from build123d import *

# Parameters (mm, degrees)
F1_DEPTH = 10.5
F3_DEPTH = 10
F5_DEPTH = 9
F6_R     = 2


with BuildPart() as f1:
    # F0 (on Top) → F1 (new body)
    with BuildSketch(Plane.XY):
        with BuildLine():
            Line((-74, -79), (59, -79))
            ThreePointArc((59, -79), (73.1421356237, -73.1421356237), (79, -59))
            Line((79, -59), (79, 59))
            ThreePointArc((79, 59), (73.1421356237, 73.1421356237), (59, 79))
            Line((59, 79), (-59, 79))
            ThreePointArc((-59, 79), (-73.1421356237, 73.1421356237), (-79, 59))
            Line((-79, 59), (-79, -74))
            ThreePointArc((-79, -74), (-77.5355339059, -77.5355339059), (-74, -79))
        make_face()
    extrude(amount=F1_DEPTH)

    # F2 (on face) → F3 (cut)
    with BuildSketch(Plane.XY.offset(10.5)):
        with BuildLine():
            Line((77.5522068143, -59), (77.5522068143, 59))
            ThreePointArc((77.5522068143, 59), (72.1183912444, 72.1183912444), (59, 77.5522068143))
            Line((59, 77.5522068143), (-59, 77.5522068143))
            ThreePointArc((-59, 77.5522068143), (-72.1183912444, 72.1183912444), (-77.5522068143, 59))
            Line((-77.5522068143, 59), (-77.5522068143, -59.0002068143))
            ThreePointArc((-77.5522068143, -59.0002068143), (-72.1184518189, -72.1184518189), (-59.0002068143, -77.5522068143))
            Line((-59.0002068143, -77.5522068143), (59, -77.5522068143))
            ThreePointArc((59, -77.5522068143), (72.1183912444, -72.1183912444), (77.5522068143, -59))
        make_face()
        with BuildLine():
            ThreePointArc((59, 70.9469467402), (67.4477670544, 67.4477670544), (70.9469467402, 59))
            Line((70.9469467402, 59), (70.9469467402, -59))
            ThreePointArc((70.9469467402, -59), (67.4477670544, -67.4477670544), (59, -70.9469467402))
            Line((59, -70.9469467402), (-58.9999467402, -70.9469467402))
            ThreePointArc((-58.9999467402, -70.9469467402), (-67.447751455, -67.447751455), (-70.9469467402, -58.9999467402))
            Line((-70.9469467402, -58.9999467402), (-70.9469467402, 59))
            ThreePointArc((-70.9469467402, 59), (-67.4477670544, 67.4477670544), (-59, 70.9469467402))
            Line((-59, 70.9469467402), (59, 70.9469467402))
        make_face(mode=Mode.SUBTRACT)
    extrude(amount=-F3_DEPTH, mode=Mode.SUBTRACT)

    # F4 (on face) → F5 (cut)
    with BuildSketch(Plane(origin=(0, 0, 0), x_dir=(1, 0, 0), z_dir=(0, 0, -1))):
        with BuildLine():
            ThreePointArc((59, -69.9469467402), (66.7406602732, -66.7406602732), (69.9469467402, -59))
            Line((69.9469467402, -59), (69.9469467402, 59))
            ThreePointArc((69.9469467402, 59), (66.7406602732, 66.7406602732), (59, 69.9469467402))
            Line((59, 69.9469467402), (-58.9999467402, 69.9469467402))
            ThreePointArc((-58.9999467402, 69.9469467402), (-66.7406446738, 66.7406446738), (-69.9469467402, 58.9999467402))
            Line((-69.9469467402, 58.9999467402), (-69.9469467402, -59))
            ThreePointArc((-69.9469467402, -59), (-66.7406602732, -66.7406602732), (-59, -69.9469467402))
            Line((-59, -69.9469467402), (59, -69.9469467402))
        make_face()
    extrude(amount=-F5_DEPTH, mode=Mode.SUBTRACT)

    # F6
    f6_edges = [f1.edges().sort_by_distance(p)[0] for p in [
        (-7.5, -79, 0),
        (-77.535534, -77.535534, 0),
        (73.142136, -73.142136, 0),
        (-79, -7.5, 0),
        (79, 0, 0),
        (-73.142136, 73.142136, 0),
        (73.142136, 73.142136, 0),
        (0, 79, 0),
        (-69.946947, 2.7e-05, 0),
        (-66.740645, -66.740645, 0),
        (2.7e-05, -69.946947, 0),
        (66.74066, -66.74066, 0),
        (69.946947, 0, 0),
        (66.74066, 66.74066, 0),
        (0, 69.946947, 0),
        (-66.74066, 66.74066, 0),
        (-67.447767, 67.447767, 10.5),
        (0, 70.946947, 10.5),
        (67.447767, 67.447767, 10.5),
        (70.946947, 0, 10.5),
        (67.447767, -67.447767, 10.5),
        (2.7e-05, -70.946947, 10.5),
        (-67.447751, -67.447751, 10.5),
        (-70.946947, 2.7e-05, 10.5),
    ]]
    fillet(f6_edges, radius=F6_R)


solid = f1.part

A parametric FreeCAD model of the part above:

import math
import FreeCAD as App
import Part
import Sketcher

V = App.Vector


def edges_at(feature, points):
    """Names of the edges that pass closest to the given points."""
    edges = feature.Shape.Edges
    near = lambda p: min(range(len(edges)), key=lambda i: edges[i].distToShape(Part.Vertex(*p))[0])
    return sorted({f"Edge{near(p) + 1}" for p in points})

doc = App.newDocument("Part")
params = doc.addObject("Spreadsheet::Sheet", "Params")
for row, (alias, value) in enumerate([
    ("sketch1_radius", "20 mm"),
    ("sketch1_radius2", "5 mm"),
    ("sketch1_width", "133 mm"),
    ("pad1_length", "10.5 mm"),
    ("sketch2_width", "118 mm"),
    ("pocket1_length", "10 mm"),
    ("sketch3_width", "118 mm"),
    ("pocket2_length", "9 mm"),
    ("fillet_radius", "2 mm"),
], start=1):
    params.set(f"A{row}", alias)
    params.set(f"B{row}", "=" + value)
    params.setAlias(f"B{row}", alias)

body = doc.addObject("PartDesign::Body", "Body")

# Sketch on XY plane
sketch1 = body.newObject("Sketcher::SketchObject", "Sketch")
sketch1.AttachmentSupport = (doc.getObject("XY_Plane"), [""])
sketch1.MapMode = "FlatFace"
sketch1.addGeometry(Part.LineSegment(V(-74, -79, 0), V(59, -79, 0)), False)
sketch1.addGeometry(Part.ArcOfCircle(Part.Circle(V(59, -59, 0), V(0, 0, 1), 20), math.radians(-90), math.radians(0)), False)
sketch1.addGeometry(Part.LineSegment(V(79, -59, 0), V(79, 59, 0)), False)
sketch1.addGeometry(Part.ArcOfCircle(Part.Circle(V(59, 59, 0), V(0, 0, 1), 20), math.radians(0), math.radians(90)), False)
sketch1.addGeometry(Part.LineSegment(V(59, 79, 0), V(-59, 79, 0)), False)
sketch1.addGeometry(Part.ArcOfCircle(Part.Circle(V(-59, 59, 0), V(0, 0, 1), 20), math.radians(90), math.radians(180)), False)
sketch1.addGeometry(Part.LineSegment(V(-79, 59, 0), V(-79, -74, 0)), False)
sketch1.addGeometry(Part.ArcOfCircle(Part.Circle(V(-74, -74, 0), V(0, 0, 1), 5), math.radians(180), math.radians(270)), False)
sketch1.addConstraint(Sketcher.Constraint("Tangent", 0, 2, 1, 1))
sketch1.addConstraint(Sketcher.Constraint("Tangent", 1, 2, 2, 1))
sketch1.addConstraint(Sketcher.Constraint("Tangent", 2, 2, 3, 1))
sketch1.addConstraint(Sketcher.Constraint("Tangent", 3, 2, 4, 1))
sketch1.addConstraint(Sketcher.Constraint("Tangent", 4, 2, 5, 1))
sketch1.addConstraint(Sketcher.Constraint("Tangent", 5, 2, 6, 1))
sketch1.addConstraint(Sketcher.Constraint("Tangent", 6, 2, 7, 1))
sketch1.addConstraint(Sketcher.Constraint("Tangent", 7, 2, 0, 1))
sketch1.addConstraint(Sketcher.Constraint("Horizontal", 0))
sketch1.addConstraint(Sketcher.Constraint("Vertical", 2))
sketch1.addConstraint(Sketcher.Constraint("Horizontal", 4))
sketch1.addConstraint(Sketcher.Constraint("Vertical", 6))
sketch1.addConstraint(Sketcher.Constraint("Equal", 1, 3))
sketch1.addConstraint(Sketcher.Constraint("Equal", 3, 5))
sketch1.addConstraint(Sketcher.Constraint("Symmetric", 1, 3, 5, 3, -1, 1))
sketch1.addConstraint(Sketcher.Constraint("Equal", 4, 2))
sketch1.addConstraint(Sketcher.Constraint("Radius", 1, 20.0))
sketch1.addConstraint(Sketcher.Constraint("Radius", 7, 5.0))
sketch1.addConstraint(Sketcher.Constraint("DistanceX", 0, 1, 0, 2, 133.0))
sketch1.setExpression("Constraints[16]", "Params.sketch1_radius")
sketch1.setExpression("Constraints[17]", "Params.sketch1_radius2")
sketch1.setExpression("Constraints[18]", "Params.sketch1_width")
pad1 = body.newObject("PartDesign::Pad", "Pad")
pad1.Profile = sketch1
pad1.setExpression("Length", "Params.pad1_length")

# Sketch on XY plane
sketch2 = body.newObject("Sketcher::SketchObject", "Sketch001")
sketch2.AttachmentSupport = (doc.getObject("XY_Plane"), [""])
sketch2.MapMode = "FlatFace"
sketch2.AttachmentOffset = App.Placement(V(0, 0, 10.5), App.Rotation())
sketch2.addGeometry(Part.LineSegment(V(77.552207, -59, 0), V(77.552207, 59, 0)), False)
sketch2.addGeometry(Part.ArcOfCircle(Part.Circle(V(59, 59, 0), V(0, 0, 1), 18.552207), math.radians(0), math.radians(90)), False)
sketch2.addGeometry(Part.LineSegment(V(59, 77.552207, 0), V(-59, 77.552207, 0)), False)
sketch2.addGeometry(Part.ArcOfCircle(Part.Circle(V(-59, 59, 0), V(0, 0, 1), 18.552207), math.radians(90), math.radians(180)), False)
sketch2.addGeometry(Part.LineSegment(V(-77.552207, 59, 0), V(-77.552207, -59.000207, 0)), False)
sketch2.addGeometry(Part.ArcOfCircle(Part.Circle(V(-59.000207, -59.000207, 0), V(0, 0, 1), 18.552), math.radians(180), math.radians(270)), False)
sketch2.addGeometry(Part.LineSegment(V(-59.000207, -77.552207, 0), V(59, -77.552207, 0)), False)
sketch2.addGeometry(Part.ArcOfCircle(Part.Circle(V(59, -59, 0), V(0, 0, 1), 18.552207), math.radians(-90), math.radians(0)), False)
sketch2.addGeometry(Part.LineSegment(V(-59, 70.946947, 0), V(59, 70.946947, 0)), False)
sketch2.addGeometry(Part.ArcOfCircle(Part.Circle(V(59, 59, 0), V(0, 0, 1), 11.946947), math.radians(0), math.radians(90)), False)
sketch2.addGeometry(Part.LineSegment(V(70.946947, 59, 0), V(70.946947, -59, 0)), False)
sketch2.addGeometry(Part.ArcOfCircle(Part.Circle(V(59, -59, 0), V(0, 0, 1), 11.946947), math.radians(-90), math.radians(0)), False)
sketch2.addGeometry(Part.LineSegment(V(59, -70.946947, 0), V(-58.999947, -70.946947, 0)), False)
sketch2.addGeometry(Part.ArcOfCircle(Part.Circle(V(-58.999947, -58.999947, 0), V(0, 0, 1), 11.947), math.radians(180), math.radians(270)), False)
sketch2.addGeometry(Part.LineSegment(V(-70.946947, -58.999947, 0), V(-70.946947, 59, 0)), False)
sketch2.addGeometry(Part.ArcOfCircle(Part.Circle(V(-59, 59, 0), V(0, 0, 1), 11.946947), math.radians(90), math.radians(180)), False)
sketch2.addConstraint(Sketcher.Constraint("Tangent", 0, 2, 1, 1))
sketch2.addConstraint(Sketcher.Constraint("Tangent", 1, 2, 2, 1))
sketch2.addConstraint(Sketcher.Constraint("Tangent", 2, 2, 3, 1))
sketch2.addConstraint(Sketcher.Constraint("Tangent", 3, 2, 4, 1))
sketch2.addConstraint(Sketcher.Constraint("Tangent", 4, 2, 5, 1))
sketch2.addConstraint(Sketcher.Constraint("Tangent", 5, 2, 6, 1))
sketch2.addConstraint(Sketcher.Constraint("Tangent", 6, 2, 7, 1))
sketch2.addConstraint(Sketcher.Constraint("Tangent", 7, 2, 0, 1))
sketch2.addConstraint(Sketcher.Constraint("Tangent", 8, 2, 9, 2))
sketch2.addConstraint(Sketcher.Constraint("Tangent", 9, 1, 10, 1))
sketch2.addConstraint(Sketcher.Constraint("Tangent", 10, 2, 11, 2))
sketch2.addConstraint(Sketcher.Constraint("Tangent", 11, 1, 12, 1))
sketch2.addConstraint(Sketcher.Constraint("Tangent", 12, 2, 13, 2))
sketch2.addConstraint(Sketcher.Constraint("Tangent", 13, 1, 14, 1))
sketch2.addConstraint(Sketcher.Constraint("Tangent", 14, 2, 15, 2))
sketch2.addConstraint(Sketcher.Constraint("Tangent", 15, 1, 8, 1))
sketch2.addConstraint(Sketcher.Constraint("Vertical", 0))
sketch2.addConstraint(Sketcher.Constraint("Horizontal", 2))
sketch2.addConstraint(Sketcher.Constraint("Vertical", 4))
sketch2.addConstraint(Sketcher.Constraint("Horizontal", 6))
sketch2.addConstraint(Sketcher.Constraint("Horizontal", 8))
sketch2.addConstraint(Sketcher.Constraint("Vertical", 10))
sketch2.addConstraint(Sketcher.Constraint("Horizontal", 12))
sketch2.addConstraint(Sketcher.Constraint("Vertical", 14))
sketch2.addConstraint(Sketcher.Constraint("Coincident", 9, 3, 1, 3))
sketch2.addConstraint(Sketcher.Constraint("Coincident", 11, 3, 7, 3))
sketch2.addConstraint(Sketcher.Constraint("Coincident", 15, 3, 3, 3))
sketch2.addConstraint(Sketcher.Constraint("Equal", 1, 3))
sketch2.addConstraint(Sketcher.Constraint("Equal", 3, 7))
sketch2.addConstraint(Sketcher.Constraint("Symmetric", 3, 3, 7, 3, -1, 1))
sketch2.addConstraint(Sketcher.Constraint("Equal", 8, 0))
sketch2.addConstraint(Sketcher.Constraint("DistanceX", 2, 2, 2, 1, 118.0))
sketch2.addConstraint(Sketcher.Constraint("Radius", 5, 18.552))
sketch2.addConstraint(Sketcher.Constraint("Radius", 13, 11.947))
sketch2.addConstraint(Sketcher.Constraint("Radius", 1, 18.552207))
sketch2.addConstraint(Sketcher.Constraint("Radius", 9, 11.946947))
sketch2.setExpression("Constraints[31]", "Params.sketch2_width")
pocket1 = body.newObject("PartDesign::Pocket", "Pocket")
pocket1.Profile = sketch2
pocket1.setExpression("Length", "Params.pocket1_length")

# Sketch on XY plane
sketch3 = body.newObject("Sketcher::SketchObject", "Sketch002")
sketch3.AttachmentSupport = (doc.getObject("XY_Plane"), [""])
sketch3.MapMode = "FlatFace"
sketch3.addGeometry(Part.ArcOfCircle(Part.Circle(V(59, 59, 0), V(0, 0, 1), 10.946947), math.radians(0), math.radians(90)), False)
sketch3.addGeometry(Part.LineSegment(V(69.946947, 59, 0), V(69.946947, -59, 0)), False)
sketch3.addGeometry(Part.ArcOfCircle(Part.Circle(V(59, -59, 0), V(0, 0, 1), 10.946947), math.radians(-90), math.radians(0)), False)
sketch3.addGeometry(Part.LineSegment(V(59, -69.946947, 0), V(-58.999947, -69.946947, 0)), False)
sketch3.addGeometry(Part.ArcOfCircle(Part.Circle(V(-58.999947, -58.999947, 0), V(0, 0, 1), 10.947), math.radians(180), math.radians(270)), False)
sketch3.addGeometry(Part.LineSegment(V(-69.946947, -58.999947, 0), V(-69.946947, 59, 0)), False)
sketch3.addGeometry(Part.ArcOfCircle(Part.Circle(V(-59, 59, 0), V(0, 0, 1), 10.946947), math.radians(90), math.radians(180)), False)
sketch3.addGeometry(Part.LineSegment(V(-59, 69.946947, 0), V(59, 69.946947, 0)), False)
sketch3.addConstraint(Sketcher.Constraint("Tangent", 0, 1, 1, 1))
sketch3.addConstraint(Sketcher.Constraint("Tangent", 1, 2, 2, 2))
sketch3.addConstraint(Sketcher.Constraint("Tangent", 2, 1, 3, 1))
sketch3.addConstraint(Sketcher.Constraint("Tangent", 3, 2, 4, 2))
sketch3.addConstraint(Sketcher.Constraint("Tangent", 4, 1, 5, 1))
sketch3.addConstraint(Sketcher.Constraint("Tangent", 5, 2, 6, 2))
sketch3.addConstraint(Sketcher.Constraint("Tangent", 6, 1, 7, 1))
sketch3.addConstraint(Sketcher.Constraint("Tangent", 7, 2, 0, 2))
sketch3.addConstraint(Sketcher.Constraint("Vertical", 1))
sketch3.addConstraint(Sketcher.Constraint("Horizontal", 3))
sketch3.addConstraint(Sketcher.Constraint("Vertical", 5))
sketch3.addConstraint(Sketcher.Constraint("Horizontal", 7))
sketch3.addConstraint(Sketcher.Constraint("Equal", 0, 2))
sketch3.addConstraint(Sketcher.Constraint("Equal", 2, 6))
sketch3.addConstraint(Sketcher.Constraint("Symmetric", 2, 3, 6, 3, -1, 1))
sketch3.addConstraint(Sketcher.Constraint("Equal", 7, 1))
sketch3.addConstraint(Sketcher.Constraint("DistanceX", 7, 1, 7, 2, 118.0))
sketch3.addConstraint(Sketcher.Constraint("Radius", 4, 10.947))
sketch3.addConstraint(Sketcher.Constraint("Radius", 0, 10.946947))
sketch3.setExpression("Constraints[16]", "Params.sketch3_width")
pocket2 = body.newObject("PartDesign::Pocket", "Pocket001")
pocket2.Profile = sketch3
pocket2.setExpression("Length", "Params.pocket2_length")
pocket2.Reversed = True
doc.recompute()

fillet = body.newObject("PartDesign::Fillet", "Fillet")
fillet.Base = (pocket2, edges_at(pocket2, [
    (-7.5, -79, 0),
    (-77.536, -77.536, 0),
    (73.142, -73.142, 0),
    (-79, -7.5, 0),
    (79, 0, 0),
    (-73.142, 73.142, 0),
    (73.142, 73.142, 0),
    (0, 79, 0),
    (-69.947, 0, 0),
    (-66.741, -66.741, 0),
    (0, -69.947, 0),
    (66.741, -66.741, 0),
    (69.947, 0, 0),
    (66.741, 66.741, 0),
    (0, 69.947, 0),
    (-66.741, 66.741, 0),
    (-67.448, 67.448, 10.5),
    (0, 70.947, 10.5),
    (67.448, 67.448, 10.5),
    (70.947, 0, 10.5),
    (67.448, -67.448, 10.5),
    (0, -70.947, 10.5),
    (-67.448, -67.448, 10.5),
    (-70.947, 0, 10.5),
]))
fillet.setExpression("Radius", "Params.fillet_radius")

doc.recompute()
